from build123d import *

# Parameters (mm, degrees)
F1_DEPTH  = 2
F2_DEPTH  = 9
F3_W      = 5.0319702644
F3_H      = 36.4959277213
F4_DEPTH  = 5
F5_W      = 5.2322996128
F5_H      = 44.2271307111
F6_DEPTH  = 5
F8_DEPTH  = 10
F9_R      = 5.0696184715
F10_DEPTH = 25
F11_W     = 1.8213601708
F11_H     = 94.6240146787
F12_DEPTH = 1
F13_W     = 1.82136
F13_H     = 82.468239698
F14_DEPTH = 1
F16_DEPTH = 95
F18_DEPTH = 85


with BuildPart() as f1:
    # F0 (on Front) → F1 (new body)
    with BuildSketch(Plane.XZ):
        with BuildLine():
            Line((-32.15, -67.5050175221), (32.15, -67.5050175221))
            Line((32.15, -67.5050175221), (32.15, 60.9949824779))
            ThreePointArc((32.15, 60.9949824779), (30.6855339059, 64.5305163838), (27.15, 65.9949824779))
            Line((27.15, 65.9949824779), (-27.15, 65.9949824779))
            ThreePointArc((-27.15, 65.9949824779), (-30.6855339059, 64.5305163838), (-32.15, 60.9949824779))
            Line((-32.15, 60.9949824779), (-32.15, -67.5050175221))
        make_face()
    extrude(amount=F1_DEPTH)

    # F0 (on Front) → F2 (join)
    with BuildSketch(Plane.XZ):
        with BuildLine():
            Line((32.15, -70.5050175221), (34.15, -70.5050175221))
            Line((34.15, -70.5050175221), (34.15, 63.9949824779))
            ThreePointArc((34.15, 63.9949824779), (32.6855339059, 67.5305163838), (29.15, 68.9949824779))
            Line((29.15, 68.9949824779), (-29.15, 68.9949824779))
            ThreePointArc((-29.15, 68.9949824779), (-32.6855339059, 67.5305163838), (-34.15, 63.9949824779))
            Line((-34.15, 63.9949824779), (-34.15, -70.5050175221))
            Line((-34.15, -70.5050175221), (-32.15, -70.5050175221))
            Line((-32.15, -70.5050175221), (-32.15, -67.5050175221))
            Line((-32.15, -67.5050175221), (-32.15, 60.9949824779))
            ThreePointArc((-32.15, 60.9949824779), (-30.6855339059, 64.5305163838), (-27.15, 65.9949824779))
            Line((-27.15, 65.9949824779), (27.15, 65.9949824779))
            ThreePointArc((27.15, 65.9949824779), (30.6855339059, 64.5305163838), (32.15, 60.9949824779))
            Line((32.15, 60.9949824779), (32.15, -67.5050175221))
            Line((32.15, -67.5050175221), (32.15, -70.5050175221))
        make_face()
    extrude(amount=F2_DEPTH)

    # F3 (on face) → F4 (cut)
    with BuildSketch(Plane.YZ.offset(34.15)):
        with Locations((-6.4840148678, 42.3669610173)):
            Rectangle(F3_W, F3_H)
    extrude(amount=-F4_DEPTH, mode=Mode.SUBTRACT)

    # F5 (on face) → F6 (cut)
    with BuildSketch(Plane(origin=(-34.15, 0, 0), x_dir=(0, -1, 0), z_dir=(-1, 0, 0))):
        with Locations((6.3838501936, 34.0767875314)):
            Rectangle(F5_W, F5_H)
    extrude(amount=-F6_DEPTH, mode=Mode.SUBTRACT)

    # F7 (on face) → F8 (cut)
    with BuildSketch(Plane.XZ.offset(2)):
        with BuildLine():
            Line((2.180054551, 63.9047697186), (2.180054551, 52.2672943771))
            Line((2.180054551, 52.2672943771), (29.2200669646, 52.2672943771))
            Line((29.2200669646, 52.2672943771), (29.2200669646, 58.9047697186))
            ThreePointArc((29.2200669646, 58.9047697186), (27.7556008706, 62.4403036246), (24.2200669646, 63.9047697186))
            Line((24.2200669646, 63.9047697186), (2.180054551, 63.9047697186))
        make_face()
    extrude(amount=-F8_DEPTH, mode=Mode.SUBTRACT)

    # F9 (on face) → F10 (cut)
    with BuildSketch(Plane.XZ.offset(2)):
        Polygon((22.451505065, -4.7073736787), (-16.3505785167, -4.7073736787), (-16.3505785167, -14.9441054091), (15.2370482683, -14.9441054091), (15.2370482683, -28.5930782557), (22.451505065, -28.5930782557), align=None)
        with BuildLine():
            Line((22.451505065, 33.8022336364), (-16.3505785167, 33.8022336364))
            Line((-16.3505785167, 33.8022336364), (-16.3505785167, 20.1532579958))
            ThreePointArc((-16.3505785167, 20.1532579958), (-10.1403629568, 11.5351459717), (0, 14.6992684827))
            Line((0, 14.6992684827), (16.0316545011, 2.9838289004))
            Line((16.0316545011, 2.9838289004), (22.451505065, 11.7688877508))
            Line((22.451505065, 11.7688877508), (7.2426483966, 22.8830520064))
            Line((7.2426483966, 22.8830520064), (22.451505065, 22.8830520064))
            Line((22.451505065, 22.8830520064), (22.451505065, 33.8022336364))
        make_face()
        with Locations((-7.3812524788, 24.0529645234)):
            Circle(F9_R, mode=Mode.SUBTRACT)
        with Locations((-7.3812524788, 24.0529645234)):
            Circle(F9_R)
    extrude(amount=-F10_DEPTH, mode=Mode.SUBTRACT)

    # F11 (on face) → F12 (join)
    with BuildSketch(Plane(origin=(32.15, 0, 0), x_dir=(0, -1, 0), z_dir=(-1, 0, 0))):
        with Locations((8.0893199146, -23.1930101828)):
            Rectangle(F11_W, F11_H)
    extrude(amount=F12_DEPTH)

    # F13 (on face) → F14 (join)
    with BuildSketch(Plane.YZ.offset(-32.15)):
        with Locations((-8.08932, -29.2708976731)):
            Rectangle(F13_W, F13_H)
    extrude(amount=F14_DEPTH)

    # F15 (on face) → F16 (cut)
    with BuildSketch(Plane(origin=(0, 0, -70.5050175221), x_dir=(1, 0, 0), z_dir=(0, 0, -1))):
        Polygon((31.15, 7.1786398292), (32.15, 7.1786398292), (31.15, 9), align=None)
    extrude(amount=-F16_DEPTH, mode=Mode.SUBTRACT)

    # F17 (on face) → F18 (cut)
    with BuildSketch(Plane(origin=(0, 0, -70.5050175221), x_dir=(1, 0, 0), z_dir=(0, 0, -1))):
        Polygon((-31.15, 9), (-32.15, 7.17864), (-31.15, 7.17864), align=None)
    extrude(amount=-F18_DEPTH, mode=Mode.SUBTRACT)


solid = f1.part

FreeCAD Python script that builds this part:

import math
import FreeCAD as App
import Part
import Sketcher

V = App.Vector
Q = App.Units.Quantity

doc = App.newDocument("Part")
params = doc.addObject("Spreadsheet::Sheet", "Params")
for row, (alias, value) in enumerate([
    ("sketch1_radius", "5 mm"),
    ("sketch1_width", "64.3 mm"),
    ("sketch1_height", "128.5 mm"),
    ("pad1_length", "2 mm"),
    ("sketch2_radius", "5 mm"),
    ("sketch2_width", "2 mm"),
    ("sketch2_width2", "58.3 mm"),
    ("sketch2_height", "134.5 mm"),
    ("sketch2_height2", "131.5 mm"),
    ("pad2_length", "9 mm"),
    ("pocket1_length", "5 mm"),
    ("pocket2_length", "5 mm"),
    ("sketch5_radius", "5 mm"),
    ("pocket3_length", "10 mm"),
    ("pocket4_length", "25 mm"),
    ("pad3_length", "1 mm"),
    ("pad4_length", "1 mm"),
    ("sketch9_width", "1 mm"),
    ("pocket5_length", "95 mm"),
    ("sketch10_width", "1 mm"),
    ("pocket6_length", "85 mm"),
], start=1):
    params.set(f"A{row}", alias)
    params.set(f"B{row}", "=" + value)
    params.setAlias(f"B{row}", alias)

body = doc.addObject("PartDesign::Body", "Body")

sketch1 = body.newObject("Sketcher::SketchObject", "Sketch")
sketch1.AttachmentSupport = (doc.getObject("XZ_Plane"), [""])
sketch1.MapMode = "FlatFace"
sketch1.addGeometry([
    Part.LineSegment(V(-32, -68, 0), V(32, -68, 0)),
    Part.LineSegment(V(32, -68, 0), V(32, 61, 0)),
    Part.ArcOfCircle(Part.Circle(V(27, 61, 0), V(0, 0, 1), 5), math.radians(0), math.radians(90)),
    Part.LineSegment(V(27, 66, 0), V(-27, 66, 0)),
    Part.ArcOfCircle(Part.Circle(V(-27, 61, 0), V(0, 0, 1), 5), math.radians(90), math.radians(180)),
    Part.LineSegment(V(-32, 61, 0), V(-32, -68, 0)),
], False)
sketch1.addConstraint([
    Sketcher.Constraint("Coincident", 0, 2, 1, 1),
    Sketcher.Constraint("Tangent", 1, 2, 2, 1),
    Sketcher.Constraint("Tangent", 2, 2, 3, 1),
    Sketcher.Constraint("Tangent", 3, 2, 4, 1),
    Sketcher.Constraint("Tangent", 4, 2, 5, 1),
    Sketcher.Constraint("Coincident", 5, 2, 0, 1),
    Sketcher.Constraint("Horizontal", 0),
    Sketcher.Constraint("Vertical", 1),
    Sketcher.Constraint("Horizontal", 3),
    Sketcher.Constraint("Vertical", 5),
    Sketcher.Constraint("Equal", 2, 4),
    Sketcher.Constraint("Radius", 2, Q("5 mm")),
    Sketcher.Constraint("DistanceX", 0, 1, 0, 2, Q("64.3 mm")),
    Sketcher.Constraint("DistanceY", 1, 1, 1, 2, Q("128.5 mm")),
    Sketcher.Constraint("DistanceX", -1, 1, 2, 3, Q("27.15 mm")),
    Sketcher.Constraint("DistanceY", -1, 1, 2, 3, Q("60.994982 mm")),
])
sketch1.setExpression("Constraints[11]", "Params.sketch1_radius")
sketch1.setExpression("Constraints[12]", "Params.sketch1_width")
sketch1.setExpression("Constraints[13]", "Params.sketch1_height")
pad1 = body.newObject("PartDesign::Pad", "Pad")
pad1.Profile = sketch1
pad1.setExpression("Length", "Params.pad1_length")

sketch2 = body.newObject("Sketcher::SketchObject", "Sketch001")
sketch2.AttachmentSupport = (doc.getObject("XZ_Plane"), [""])
sketch2.MapMode = "FlatFace"
sketch2.addGeometry([
    Part.LineSegment(V(32.1, -70.5, 0), V(34.1, -70.5, 0)),
    Part.LineSegment(V(34.1, -70.5, 0), V(34.1, 64, 0)),
    Part.ArcOfCircle(Part.Circle(V(29.1, 64, 0), V(0, 0, 1), 5), math.radians(0), math.radians(90)),
    Part.LineSegment(V(29.1, 69, 0), V(-29.1, 69, 0)),
    Part.ArcOfCircle(Part.Circle(V(-29.1, 64, 0), V(0, 0, 1), 5), math.radians(90), math.radians(180)),
    Part.LineSegment(V(-34.1, 64, 0), V(-34.1, -70.5, 0)),
    Part.LineSegment(V(-34.1, -70.5, 0), V(-32.1, -70.5, 0)),
    Part.LineSegment(V(-32.1, -70.5, 0), V(-32.1, 61, 0)),
    Part.ArcOfCircle(Part.Circle(V(-27.1, 61, 0), V(0, 0, 1), 5), math.radians(90), math.radians(180)),
    Part.LineSegment(V(-27.1, 66, 0), V(27.1, 66, 0)),
    Part.ArcOfCircle(Part.Circle(V(27.1, 61, 0), V(0, 0, 1), 5), math.radians(0), math.radians(90)),
    Part.LineSegment(V(32.1, 61, 0), V(32.1, -70.5, 0)),
], False)
sketch2.addConstraint([
    Sketcher.Constraint("Coincident", 0, 2, 1, 1),
    Sketcher.Constraint("Tangent", 1, 2, 2, 1),
    Sketcher.Constraint("Tangent", 2, 2, 3, 1),
    Sketcher.Constraint("Tangent", 3, 2, 4, 1),
    Sketcher.Constraint("Tangent", 4, 2, 5, 1),
    Sketcher.Constraint("Coincident", 5, 2, 6, 1),
    Sketcher.Constraint("Coincident", 6, 2, 7, 1),
    Sketcher.Constraint("Tangent", 7, 2, 8, 2),
    Sketcher.Constraint("Tangent", 8, 1, 9, 1),
    Sketcher.Constraint("Tangent", 9, 2, 10, 2),
    Sketcher.Constraint("Tangent", 10, 1, 11, 1),
    Sketcher.Constraint("Coincident", 11, 2, 0, 1),
    Sketcher.Constraint("Horizontal", 0),
    Sketcher.Constraint("Vertical", 1),
    Sketcher.Constraint("Horizontal", 3),
    Sketcher.Constraint("Vertical", 5),
    Sketcher.Constraint("Horizontal", 6),
    Sketcher.Constraint("Vertical", 7),
    Sketcher.Constraint("Horizontal", 9),
    Sketcher.Constraint("Vertical", 11),
    Sketcher.Constraint("Equal", 2, 4),
    Sketcher.Constraint("Equal", 4, 8),
    Sketcher.Constraint("Equal", 8, 10),
    Sketcher.Constraint("Symmetric", 0, 2, 5, 2, -2),
    Sketcher.Constraint("Equal", 0, 6),
    Sketcher.Constraint("Radius", 2, Q("5 mm")),
    Sketcher.Constraint("DistanceX", 0, 1, 0, 2, Q("2 mm")),
    Sketcher.Constraint("DistanceX", 3, 2, 3, 1, Q("58.3 mm")),
    Sketcher.Constraint("DistanceY", 1, 1, 1, 2, Q("134.5 mm")),
    Sketcher.Constraint("DistanceY", 7, 1, 7, 2, Q("131.5 mm")),
    Sketcher.Constraint("DistanceY", -1, 1, 2, 3, Q("63.994982 mm")),
])
sketch2.setExpression("Constraints[25]", "Params.sketch2_radius")
sketch2.setExpression("Constraints[26]", "Params.sketch2_width")
sketch2.setExpression("Constraints[27]", "Params.sketch2_width2")
sketch2.setExpression("Constraints[28]", "Params.sketch2_height")
sketch2.setExpression("Constraints[29]", "Params.sketch2_height2")
pad2 = body.newObject("PartDesign::Pad", "Pad001")
pad2.Profile = sketch2
pad2.setExpression("Length", "Params.pad2_length")

sketch3 = body.newObject("Sketcher::SketchObject", "Sketch002")
sketch3.AttachmentSupport = (doc.getObject("YZ_Plane"), [""])
sketch3.MapMode = "FlatFace"
sketch3.AttachmentOffset = App.Placement(V(0, 0, 34.15), App.Rotation())
sketch3.addGeometry([
    Part.LineSegment(V(-9, 61, 0), V(-9, 24, 0)),
    Part.LineSegment(V(-9, 24, 0), V(-4, 24, 0)),
    Part.LineSegment(V(-4, 24, 0), V(-4, 61, 0)),
    Part.LineSegment(V(-4, 61, 0), V(-9, 61, 0)),
], False)
sketch3.addConstraint([
    Sketcher.Constraint("Coincident", 0, 2, 1, 1),
    Sketcher.Constraint("Coincident", 1, 2, 2, 1),
    Sketcher.Constraint("Coincident", 2, 2, 3, 1),
    Sketcher.Constraint("Coincident", 3, 2, 0, 1),
    Sketcher.Constraint("Vertical", 0),
    Sketcher.Constraint("Horizontal", 1),
    Sketcher.Constraint("Vertical", 2),
    Sketcher.Constraint("Horizontal", 3),
    Sketcher.Constraint("DistanceX", 0, 2, -1, 1, Q("9 mm")),
    Sketcher.Constraint("DistanceX", 1, 1, 1, 2, Q("5.03197 mm")),
    Sketcher.Constraint("DistanceY", 0, 2, 0, 1, Q("36.495928 mm")),
    Sketcher.Constraint("DistanceY", -1, 1, 0, 2, Q("24.118997 mm")),
])
pocket1 = body.newObject("PartDesign::Pocket", "Pocket")
pocket1.Profile = sketch3
pocket1.setExpression("Length", "Params.pocket1_length")

sketch4 = body.newObject("Sketcher::SketchObject", "Sketch003")
sketch4.AttachmentSupport = (doc.getObject("YZ_Plane"), [""])
sketch4.MapMode = "FlatFace"
sketch4.AttachmentOffset = App.Placement(V(0, 0, -34.15), App.Rotation())
sketch4.addGeometry([
    Part.LineSegment(V(-4, 56, 0), V(-4, 12, 0)),
    Part.LineSegment(V(-4, 12, 0), V(-9, 12, 0)),
    Part.LineSegment(V(-9, 12, 0), V(-9, 56, 0)),
    Part.LineSegment(V(-9, 56, 0), V(-4, 56, 0)),
], False)
sketch4.addConstraint([
    Sketcher.Constraint("Coincident", 0, 2, 1, 1),
    Sketcher.Constraint("Coincident", 1, 2, 2, 1),
    Sketcher.Constraint("Coincident", 2, 2, 3, 1),
    Sketcher.Constraint("Coincident", 3, 2, 0, 1),
    Sketcher.Constraint("Vertical", 0),
    Sketcher.Constraint("Horizontal", 1),
    Sketcher.Constraint("Vertical", 2),
    Sketcher.Constraint("Horizontal", 3),
    Sketcher.Constraint("DistanceX", 1, 2, -1, 1, Q("9 mm")),
    Sketcher.Constraint("DistanceX", 1, 2, 1, 1, Q("5.2323 mm")),
    Sketcher.Constraint("DistanceY", 0, 2, 0, 1, Q("44.227131 mm")),
    Sketcher.Constraint("DistanceY", -1, 1, 0, 2, Q("11.963222 mm")),
])
pocket2 = body.newObject("PartDesign::Pocket", "Pocket001")
pocket2.Profile = sketch4
pocket2.setExpression("Length", "Params.pocket2_length")
pocket2.Reversed = True

sketch5 = body.newObject("Sketcher::SketchObject", "Sketch004")
sketch5.AttachmentSupport = (doc.getObject("XZ_Plane"), [""])
sketch5.MapMode = "FlatFace"
sketch5.AttachmentOffset = App.Placement(V(0, 0, 2), App.Rotation())
sketch5.addGeometry([
    Part.LineSegment(V(2, 64, 0), V(2, 52, 0)),
    Part.LineSegment(V(2, 52, 0), V(29, 52, 0)),
    Part.LineSegment(V(29, 52, 0), V(29, 59, 0)),
    Part.ArcOfCircle(Part.Circle(V(24, 59, 0), V(0, 0, 1), 5), math.radians(0), math.radians(90)),
    Part.LineSegment(V(24, 64, 0), V(2, 64, 0)),
], False)
sketch5.addConstraint([
    Sketcher.Constraint("Coincident", 0, 2, 1, 1),
    Sketcher.Constraint("Coincident", 1, 2, 2, 1),
    Sketcher.Constraint("Tangent", 2, 2, 3, 1),
    Sketcher.Constraint("Tangent", 3, 2, 4, 1),
    Sketcher.Constraint("Coincident", 4, 2, 0, 1),
    Sketcher.Constraint("Vertical", 0),
    Sketcher.Constraint("Horizontal", 1),
    Sketcher.Constraint("Vertical", 2),
    Sketcher.Constraint("Horizontal", 4),
    Sketcher.Constraint("Radius", 3, Q("5 mm")),
    Sketcher.Constraint("DistanceX", 1, 1, 1, 2, Q("27.040012 mm")),
    Sketcher.Constraint("DistanceY", 0, 2, 0, 1, Q("11.637475 mm")),
    Sketcher.Constraint("DistanceY", -1, 1, 3, 3, Q("58.90477 mm")),
    Sketcher.Constraint("DistanceX", -1, 1, 3, 3, Q("24.220067 mm")),
])
sketch5.setExpression("Constraints[9]", "Params.sketch5_radius")
pocket3 = body.newObject("PartDesign::Pocket", "Pocket002")
pocket3.Profile = sketch5
pocket3.setExpression("Length", "Params.pocket3_length")

sketch6 = body.newObject("Sketcher::SketchObject", "Sketch005")
sketch6.AttachmentSupport = (doc.getObject("XZ_Plane"), [""])
sketch6.MapMode = "FlatFace"
sketch6.AttachmentOffset = App.Placement(V(0, 0, 2), App.Rotation())
sketch6.addGeometry([
    Part.LineSegment(V(22, -5, 0), V(-16, -5, 0)),
    Part.LineSegment(V(-16, -5, 0), V(-16, -15, 0)),
    Part.LineSegment(V(-16, -15, 0), V(15, -15, 0)),
    Part.LineSegment(V(15, -15, 0), V(15, -29, 0)),
    Part.LineSegment(V(15, -29, 0), V(22, -29, 0)),
    Part.LineSegment(V(22, -29, 0), V(22, -5, 0)),
    Part.LineSegment(V(22, 34, 0), V(-16, 34, 0)),
    Part.LineSegment(V(-16, 34, 0), V(-16, 20, 0)),
    Part.ArcOfCircle(Part.Circle(V(-7, 20, 0), V(0, 0, 1), 9), math.radians(180), math.radians(323)),
    Part.LineSegment(V(0, 15, 0), V(16, 3, 0)),
    Part.LineSegment(V(16, 3, 0), V(22, 12, 0)),
    Part.LineSegment(V(22, 12, 0), V(7, 23, 0)),
    Part.LineSegment(V(7, 23, 0), V(22, 23, 0)),
    Part.LineSegment(V(22, 23, 0), V(22, 34, 0)),
], False)
sketch6.addConstraint([
    Sketcher.Constraint("Coincident", 0, 2, 1, 1),
    Sketcher.Constraint("Coincident", 1, 2, 2, 1),
    Sketcher.Constraint("Coincident", 2, 2, 3, 1),
    Sketcher.Constraint("Coincident", 3, 2, 4, 1),
    Sketcher.Constraint("Coincident", 4, 2, 5, 1),
    Sketcher.Constraint("Coincident", 5, 2, 0, 1),
    Sketcher.Constraint("Coincident", 6, 2, 7, 1),
    Sketcher.Constraint("Tangent", 7, 2, 8, 1),
    Sketcher.Constraint("Coincident", 8, 2, 9, 1),
    Sketcher.Constraint("Coincident", 9, 2, 10, 1),
    Sketcher.Constraint("Coincident", 10, 2, 11, 1),
    Sketcher.Constraint("Coincident", 11, 2, 12, 1),
    Sketcher.Constraint("Coincident", 12, 2, 13, 1),
    Sketcher.Constraint("Coincident", 13, 2, 6, 1),
    Sketcher.Constraint("Horizontal", 0),
    Sketcher.Constraint("Vertical", 1),
    Sketcher.Constraint("Horizontal", 2),
    Sketcher.Constraint("Vertical", 3),
    Sketcher.Constraint("Horizontal", 4),
    Sketcher.Constraint("Vertical", 5),
    Sketcher.Constraint("Horizontal", 6),
    Sketcher.Constraint("Vertical", 7),
    Sketcher.Constraint("Horizontal", 12),
    Sketcher.Constraint("Vertical", 13),
    Sketcher.Constraint("PointOnObject", 8, 2, -2),
    Sketcher.Constraint("Perpendicular", 9, 10),
    Sketcher.Constraint("Perpendicular", 10, 11),
    Sketcher.Constraint("Vertical", 1, 2, 6, 2),
    Sketcher.Constraint("Vertical", 5, 2, 10, 2),
    Sketcher.Constraint("Vertical", 10, 2, 12, 2),
    Sketcher.Constraint("Radius", 8, Q("9.084921 mm")),
    Sketcher.Constraint("DistanceY", 1, 2, 1, 1, Q("10.236732 mm")),
    Sketcher.Constraint("DistanceY", 13, 1, 13, 2, Q("10.919182 mm")),
    Sketcher.Constraint("Distance", 9, Q("19.856119 mm")),
    Sketcher.Constraint("DistanceX", 0, 2, 0, 1, Q("38.802084 mm")),
    Sketcher.Constraint("DistanceX", 2, 1, 2, 2, Q("31.587627 mm")),
    Sketcher.Constraint("DistanceX", 12, 1, 12, 2, Q("15.208857 mm")),
    Sketcher.Constraint("DistanceY", 3, 2, 3, 1, Q("13.648973 mm")),
    Sketcher.Constraint("DistanceY", 7, 2, 7, 1, Q("13.648976 mm")),
    Sketcher.Constraint("DistanceX", 0, 2, -1, 1, Q("16.350579 mm")),
    Sketcher.Constraint("DistanceY", 3, 2, -1, 1, Q("28.593078 mm")),
    Sketcher.Constraint("DistanceY", -1, 1, 8, 2, Q("14.699268 mm")),
])
pocket4 = body.newObject("PartDesign::Pocket", "Pocket003")
pocket4.Profile = sketch6
pocket4.setExpression("Length", "Params.pocket4_length")

sketch7 = body.newObject("Sketcher::SketchObject", "Sketch006")
sketch7.AttachmentSupport = (doc.getObject("YZ_Plane"), [""])
sketch7.MapMode = "FlatFace"
sketch7.AttachmentOffset = App.Placement(V(0, 0, 32.15), App.Rotation())
sketch7.addGeometry([
    Part.LineSegment(V(-7.2, 24.1, 0), V(-7.2, -70.5, 0)),
    Part.LineSegment(V(-7.2, -70.5, 0), V(-9, -70.5, 0)),
    Part.LineSegment(V(-9, -70.5, 0), V(-9, 24.1, 0)),
    Part.LineSegment(V(-9, 24.1, 0), V(-7.2, 24.1, 0)),
], False)
sketch7.addConstraint([
    Sketcher.Constraint("Coincident", 0, 2, 1, 1),
    Sketcher.Constraint("Coincident", 1, 2, 2, 1),
    Sketcher.Constraint("Coincident", 2, 2, 3, 1),
    Sketcher.Constraint("Coincident", 3, 2, 0, 1),
    Sketcher.Constraint("Vertical", 0),
    Sketcher.Constraint("Horizontal", 1),
    Sketcher.Constraint("Vertical", 2),
    Sketcher.Constraint("Horizontal", 3),
    Sketcher.Constraint("DistanceX", 1, 2, -1, 1, Q("9 mm")),
    Sketcher.Constraint("DistanceX", 1, 2, 1, 1, Q("1.82136 mm")),
    Sketcher.Constraint("DistanceY", 0, 2, 0, 1, Q("94.624015 mm")),
    Sketcher.Constraint("DistanceY", 0, 2, -1, 1, Q("70.505018 mm")),
])
pad3 = body.newObject("PartDesign::Pad", "Pad002")
pad3.Profile = sketch7
pad3.setExpression("Length", "Params.pad3_length")
pad3.Reversed = True

sketch8 = body.newObject("Sketcher::SketchObject", "Sketch007")
sketch8.AttachmentSupport = (doc.getObject("YZ_Plane"), [""])
sketch8.MapMode = "FlatFace"
sketch8.AttachmentOffset = App.Placement(V(0, 0, -32.15), App.Rotation())
sketch8.addGeometry([
    Part.LineSegment(V(-9, 12, 0), V(-9, -70.5, 0)),
    Part.LineSegment(V(-9, -70.5, 0), V(-7.2, -70.5, 0)),
    Part.LineSegment(V(-7.2, -70.5, 0), V(-7.2, 12, 0)),
    Part.LineSegment(V(-7.2, 12, 0), V(-9, 12, 0)),
], False)
sketch8.addConstraint([
    Sketcher.Constraint("Coincident", 0, 2, 1, 1),
    Sketcher.Constraint("Coincident", 1, 2, 2, 1),
    Sketcher.Constraint("Coincident", 2, 2, 3, 1),
    Sketcher.Constraint("Coincident", 3, 2, 0, 1),
    Sketcher.Constraint("Vertical", 0),
    Sketcher.Constraint("Horizontal", 1),
    Sketcher.Constraint("Vertical", 2),
    Sketcher.Constraint("Horizontal", 3),
    Sketcher.Constraint("DistanceX", 0, 2, -1, 1, Q("9 mm")),
    Sketcher.Constraint("DistanceX", 1, 1, 1, 2, Q("1.82136 mm")),
    Sketcher.Constraint("DistanceY", 0, 2, 0, 1, Q("82.46824 mm")),
    Sketcher.Constraint("DistanceY", 0, 2, -1, 1, Q("70.505018 mm")),
])
pad4 = body.newObject("PartDesign::Pad", "Pad003")
pad4.Profile = sketch8
pad4.setExpression("Length", "Params.pad4_length")

sketch9 = body.newObject("Sketcher::SketchObject", "Sketch008")
sketch9.AttachmentSupport = (doc.getObject("XY_Plane"), [""])
sketch9.MapMode = "FlatFace"
sketch9.AttachmentOffset = App.Placement(V(0, 0, -70.505018), App.Rotation())
sketch9.addGeometry([
    Part.LineSegment(V(31.1, -7.2, 0), V(32.1, -7.2, 0)),
    Part.LineSegment(V(32.1, -7.2, 0), V(31.1, -9, 0)),
    Part.LineSegment(V(31.1, -9, 0), V(31.1, -7.2, 0)),
], False)
sketch9.addConstraint([
    Sketcher.Constraint("Coincident", 0, 2, 1, 1),
    Sketcher.Constraint("Coincident", 1, 2, 2, 1),
    Sketcher.Constraint("Coincident", 2, 2, 0, 1),
    Sketcher.Constraint("Horizontal", 0),
    Sketcher.Constraint("Vertical", 2),
    Sketcher.Constraint("DistanceX", 0, 1, 0, 2, Q("1 mm")),
    Sketcher.Constraint("DistanceY", 1, 2, -1, 1, Q("9 mm")),
    Sketcher.Constraint("DistanceX", -1, 1, 0, 2, Q("32.15 mm")),
    Sketcher.Constraint("DistanceY", 2, 1, 2, 2, Q("1.82136 mm")),
])
sketch9.setExpression("Constraints[5]", "Params.sketch9_width")
pocket5 = body.newObject("PartDesign::Pocket", "Pocket004")
pocket5.Profile = sketch9
pocket5.setExpression("Length", "Params.pocket5_length")
pocket5.Reversed = True

sketch10 = body.newObject("Sketcher::SketchObject", "Sketch009")
sketch10.AttachmentSupport = (doc.getObject("XY_Plane"), [""])
sketch10.MapMode = "FlatFace"
sketch10.AttachmentOffset = App.Placement(V(0, 0, -70.505018), App.Rotation())
sketch10.addGeometry([
    Part.LineSegment(V(-31.1, -9, 0), V(-32.1, -7.2, 0)),
    Part.LineSegment(V(-32.1, -7.2, 0), V(-31.1, -7.2, 0)),
    Part.LineSegment(V(-31.1, -7.2, 0), V(-31.1, -9, 0)),
], False)
sketch10.addConstraint([
    Sketcher.Constraint("Coincident", 0, 2, 1, 1),
    Sketcher.Constraint("Coincident", 1, 2, 2, 1),
    Sketcher.Constraint("Coincident", 2, 2, 0, 1),
    Sketcher.Constraint("Horizontal", 1),
    Sketcher.Constraint("Vertical", 2),
    Sketcher.Constraint("DistanceX", 1, 1, 1, 2, Q("1 mm")),
    Sketcher.Constraint("DistanceY", 2, 2, -1, 1, Q("9 mm")),
    Sketcher.Constraint("DistanceX", 0, 2, -1, 1, Q("32.15 mm")),
    Sketcher.Constraint("DistanceY", 2, 2, 2, 1, Q("1.82136 mm")),
])
sketch10.setExpression("Constraints[5]", "Params.sketch10_width")
pocket6 = body.newObject("PartDesign::Pocket", "Pocket005")
pocket6.Profile = sketch10
pocket6.setExpression("Length", "Params.pocket6_length")
pocket6.Reversed = True

doc.recompute()
